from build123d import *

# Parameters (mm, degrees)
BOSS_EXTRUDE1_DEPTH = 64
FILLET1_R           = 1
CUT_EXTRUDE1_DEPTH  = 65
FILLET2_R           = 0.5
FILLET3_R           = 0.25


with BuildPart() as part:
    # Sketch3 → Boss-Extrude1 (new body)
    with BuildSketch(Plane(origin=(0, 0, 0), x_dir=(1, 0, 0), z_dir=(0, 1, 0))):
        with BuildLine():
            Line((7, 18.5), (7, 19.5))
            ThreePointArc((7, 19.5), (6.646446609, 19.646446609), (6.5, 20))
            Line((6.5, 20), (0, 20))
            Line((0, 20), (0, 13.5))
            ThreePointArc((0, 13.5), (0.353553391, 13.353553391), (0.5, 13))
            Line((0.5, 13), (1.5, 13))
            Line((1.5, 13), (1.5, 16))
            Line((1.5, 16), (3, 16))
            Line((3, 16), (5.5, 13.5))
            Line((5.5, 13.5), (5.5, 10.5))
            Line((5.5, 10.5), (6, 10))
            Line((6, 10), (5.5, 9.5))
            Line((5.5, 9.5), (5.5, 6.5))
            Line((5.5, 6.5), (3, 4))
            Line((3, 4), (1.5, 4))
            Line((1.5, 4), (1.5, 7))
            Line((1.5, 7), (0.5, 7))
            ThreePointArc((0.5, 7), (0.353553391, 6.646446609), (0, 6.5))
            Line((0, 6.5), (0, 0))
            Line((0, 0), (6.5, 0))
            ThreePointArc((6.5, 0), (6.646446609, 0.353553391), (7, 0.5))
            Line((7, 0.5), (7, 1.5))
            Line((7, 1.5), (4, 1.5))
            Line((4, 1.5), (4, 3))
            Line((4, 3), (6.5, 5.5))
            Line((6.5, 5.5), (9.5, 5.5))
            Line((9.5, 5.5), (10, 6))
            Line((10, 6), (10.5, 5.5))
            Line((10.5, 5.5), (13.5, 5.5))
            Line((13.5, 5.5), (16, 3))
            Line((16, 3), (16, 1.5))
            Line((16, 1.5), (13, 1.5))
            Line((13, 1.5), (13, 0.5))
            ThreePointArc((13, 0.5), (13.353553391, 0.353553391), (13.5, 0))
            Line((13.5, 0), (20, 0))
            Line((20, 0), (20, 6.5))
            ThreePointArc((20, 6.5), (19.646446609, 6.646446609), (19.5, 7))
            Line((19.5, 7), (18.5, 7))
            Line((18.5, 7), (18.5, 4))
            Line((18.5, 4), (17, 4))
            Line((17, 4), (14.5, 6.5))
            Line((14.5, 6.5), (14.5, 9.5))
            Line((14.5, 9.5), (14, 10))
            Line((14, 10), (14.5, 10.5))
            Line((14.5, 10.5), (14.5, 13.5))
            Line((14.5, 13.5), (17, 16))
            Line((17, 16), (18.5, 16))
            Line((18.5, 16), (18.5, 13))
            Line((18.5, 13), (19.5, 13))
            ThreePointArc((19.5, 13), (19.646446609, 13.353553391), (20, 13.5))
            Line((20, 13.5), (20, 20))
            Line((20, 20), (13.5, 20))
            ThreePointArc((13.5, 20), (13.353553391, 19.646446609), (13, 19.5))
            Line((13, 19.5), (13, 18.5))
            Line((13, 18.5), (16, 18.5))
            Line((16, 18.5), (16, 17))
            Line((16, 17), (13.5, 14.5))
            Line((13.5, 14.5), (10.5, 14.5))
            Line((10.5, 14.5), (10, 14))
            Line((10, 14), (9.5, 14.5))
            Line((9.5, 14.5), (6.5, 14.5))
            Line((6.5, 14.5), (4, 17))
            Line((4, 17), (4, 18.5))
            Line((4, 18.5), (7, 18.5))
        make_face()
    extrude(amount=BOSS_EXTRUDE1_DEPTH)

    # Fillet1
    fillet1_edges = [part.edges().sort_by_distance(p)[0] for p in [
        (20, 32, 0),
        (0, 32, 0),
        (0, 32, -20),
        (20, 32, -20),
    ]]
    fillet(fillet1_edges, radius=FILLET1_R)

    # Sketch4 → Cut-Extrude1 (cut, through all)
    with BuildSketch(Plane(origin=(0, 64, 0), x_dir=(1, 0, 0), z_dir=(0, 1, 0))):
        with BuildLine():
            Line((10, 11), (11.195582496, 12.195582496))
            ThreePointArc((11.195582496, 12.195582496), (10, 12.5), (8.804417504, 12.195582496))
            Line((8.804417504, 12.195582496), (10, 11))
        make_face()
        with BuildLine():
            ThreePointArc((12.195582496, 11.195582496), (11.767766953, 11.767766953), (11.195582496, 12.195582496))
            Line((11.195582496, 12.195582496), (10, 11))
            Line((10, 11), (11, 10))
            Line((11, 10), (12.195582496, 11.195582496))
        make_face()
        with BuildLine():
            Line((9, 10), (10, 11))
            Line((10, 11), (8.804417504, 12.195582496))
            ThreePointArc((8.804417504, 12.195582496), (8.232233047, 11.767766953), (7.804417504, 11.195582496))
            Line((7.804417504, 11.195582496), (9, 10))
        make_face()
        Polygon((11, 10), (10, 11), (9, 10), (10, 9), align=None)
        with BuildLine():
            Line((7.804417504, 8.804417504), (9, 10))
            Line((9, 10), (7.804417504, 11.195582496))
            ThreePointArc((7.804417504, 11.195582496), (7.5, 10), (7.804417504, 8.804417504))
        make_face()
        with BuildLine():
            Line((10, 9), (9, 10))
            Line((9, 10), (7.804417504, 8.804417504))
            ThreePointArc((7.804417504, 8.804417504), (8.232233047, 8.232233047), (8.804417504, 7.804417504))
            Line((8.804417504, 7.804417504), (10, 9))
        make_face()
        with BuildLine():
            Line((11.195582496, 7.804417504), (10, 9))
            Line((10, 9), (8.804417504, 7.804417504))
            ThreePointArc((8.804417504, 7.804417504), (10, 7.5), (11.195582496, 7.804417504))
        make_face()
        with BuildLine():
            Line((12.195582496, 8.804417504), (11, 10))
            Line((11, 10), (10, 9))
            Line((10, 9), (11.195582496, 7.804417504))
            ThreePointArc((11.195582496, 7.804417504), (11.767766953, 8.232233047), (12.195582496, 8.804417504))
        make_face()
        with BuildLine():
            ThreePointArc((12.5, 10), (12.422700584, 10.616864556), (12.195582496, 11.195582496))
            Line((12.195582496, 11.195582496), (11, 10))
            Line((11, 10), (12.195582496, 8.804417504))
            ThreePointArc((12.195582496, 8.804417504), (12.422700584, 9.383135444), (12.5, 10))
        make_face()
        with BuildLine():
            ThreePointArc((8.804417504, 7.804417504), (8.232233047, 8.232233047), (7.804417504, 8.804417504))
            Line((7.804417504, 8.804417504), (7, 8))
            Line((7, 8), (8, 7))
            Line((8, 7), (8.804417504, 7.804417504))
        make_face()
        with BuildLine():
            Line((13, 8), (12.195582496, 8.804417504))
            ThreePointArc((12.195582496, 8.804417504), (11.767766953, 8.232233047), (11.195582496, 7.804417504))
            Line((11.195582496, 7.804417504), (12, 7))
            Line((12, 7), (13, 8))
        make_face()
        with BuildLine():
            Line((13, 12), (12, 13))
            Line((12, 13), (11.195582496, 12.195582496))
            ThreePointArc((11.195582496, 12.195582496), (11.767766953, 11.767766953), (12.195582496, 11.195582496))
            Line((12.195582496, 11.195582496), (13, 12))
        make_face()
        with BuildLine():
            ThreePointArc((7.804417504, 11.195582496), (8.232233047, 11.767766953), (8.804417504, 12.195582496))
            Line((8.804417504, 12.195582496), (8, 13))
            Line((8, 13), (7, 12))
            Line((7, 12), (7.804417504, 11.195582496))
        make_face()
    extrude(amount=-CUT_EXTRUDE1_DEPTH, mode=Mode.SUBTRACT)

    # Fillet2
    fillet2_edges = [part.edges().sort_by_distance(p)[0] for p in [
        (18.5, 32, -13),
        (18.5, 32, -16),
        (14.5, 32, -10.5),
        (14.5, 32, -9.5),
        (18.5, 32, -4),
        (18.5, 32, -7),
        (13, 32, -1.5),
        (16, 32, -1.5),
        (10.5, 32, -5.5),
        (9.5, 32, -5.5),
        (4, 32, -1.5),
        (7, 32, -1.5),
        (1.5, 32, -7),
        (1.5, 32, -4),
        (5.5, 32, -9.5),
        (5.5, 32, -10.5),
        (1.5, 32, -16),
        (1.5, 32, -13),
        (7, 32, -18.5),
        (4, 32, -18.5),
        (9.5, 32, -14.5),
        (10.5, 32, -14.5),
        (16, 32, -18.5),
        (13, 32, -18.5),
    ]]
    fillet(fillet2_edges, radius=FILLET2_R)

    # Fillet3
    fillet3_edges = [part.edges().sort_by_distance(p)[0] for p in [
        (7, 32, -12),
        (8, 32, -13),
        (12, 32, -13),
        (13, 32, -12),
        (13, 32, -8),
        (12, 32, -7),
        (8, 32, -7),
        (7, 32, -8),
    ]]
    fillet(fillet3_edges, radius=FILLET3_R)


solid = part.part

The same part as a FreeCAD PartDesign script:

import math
import FreeCAD as App
import Part
import Sketcher

V = App.Vector


def edges_at(feature, points):
    """Names of the edges that pass closest to the given points."""
    edges = feature.Shape.Edges
    near = lambda p: min(range(len(edges)), key=lambda i: edges[i].distToShape(Part.Vertex(*p))[0])
    return sorted({f"Edge{near(p) + 1}" for p in points})

doc = App.newDocument("Part")
body = doc.addObject("PartDesign::Body", "Body")

# Sketch on XZ plane
sketch1 = doc.addObject("Sketcher::SketchObject", "Sketch")
body.addObject(sketch1)
sketch1.AttachmentSupport = (doc.XZ_Plane, [""])
sketch1.MapMode = "FlatFace"
sketch1.addGeometry([
    Part.LineSegment(V(7, -18.5, 0), V(7, -19.5, 0)),  # 0
    Part.ArcOfCircle(Part.Circle(V(7, -20, 0), V(0, 0, 1), 0.5), math.radians(90), math.radians(180)),  # 1
    Part.LineSegment(V(6.5, -20, 0), V(0, -20, 0)),  # 2
    Part.LineSegment(V(0, -20, 0), V(0, -13.5, 0)),  # 3
    Part.ArcOfCircle(Part.Circle(V(0, -13, 0), V(0, 0, 1), 0.5), math.radians(-90), math.radians(0)),  # 4
    Part.LineSegment(V(0.5, -13, 0), V(1.5, -13, 0)),  # 5
    Part.LineSegment(V(1.5, -13, 0), V(1.5, -16, 0)),  # 6
    Part.LineSegment(V(1.5, -16, 0), V(3, -16, 0)),  # 7
    Part.LineSegment(V(3, -16, 0), V(5.5, -13.5, 0)),  # 8
    Part.LineSegment(V(5.5, -13.5, 0), V(5.5, -10.5, 0)),  # 9
    Part.LineSegment(V(5.5, -10.5, 0), V(6, -10, 0)),  # 10
    Part.LineSegment(V(6, -10, 0), V(5.5, -9.5, 0)),  # 11
    Part.LineSegment(V(5.5, -9.5, 0), V(5.5, -6.5, 0)),  # 12
    Part.LineSegment(V(5.5, -6.5, 0), V(3, -4, 0)),  # 13
    Part.LineSegment(V(3, -4, 0), V(1.5, -4, 0)),  # 14
    Part.LineSegment(V(1.5, -4, 0), V(1.5, -7, 0)),  # 15
    Part.LineSegment(V(1.5, -7, 0), V(0.5, -7, 0)),  # 16
    Part.ArcOfCircle(Part.Circle(V(0, -7, 0), V(0, 0, 1), 0.5), math.radians(0), math.radians(90)),  # 17
    Part.LineSegment(V(0, -6.5, 0), V(0, 0, 0)),  # 18
    Part.LineSegment(V(0, 0, 0), V(6.5, 0, 0)),  # 19
    Part.ArcOfCircle(Part.Circle(V(7, 0, 0), V(0, 0, 1), 0.5), math.radians(180), math.radians(270)),  # 20
    Part.LineSegment(V(7, -0.5, 0), V(7, -1.5, 0)),  # 21
    Part.LineSegment(V(7, -1.5, 0), V(4, -1.5, 0)),  # 22
    Part.LineSegment(V(4, -1.5, 0), V(4, -3, 0)),  # 23
    Part.LineSegment(V(4, -3, 0), V(6.5, -5.5, 0)),  # 24
    Part.LineSegment(V(6.5, -5.5, 0), V(9.5, -5.5, 0)),  # 25
    Part.LineSegment(V(9.5, -5.5, 0), V(10, -6, 0)),  # 26
    Part.LineSegment(V(10, -6, 0), V(10.5, -5.5, 0)),  # 27
    Part.LineSegment(V(10.5, -5.5, 0), V(13.5, -5.5, 0)),  # 28
    Part.LineSegment(V(13.5, -5.5, 0), V(16, -3, 0)),  # 29
    Part.LineSegment(V(16, -3, 0), V(16, -1.5, 0)),  # 30
    Part.LineSegment(V(16, -1.5, 0), V(13, -1.5, 0)),  # 31
    Part.LineSegment(V(13, -1.5, 0), V(13, -0.5, 0)),  # 32
    Part.ArcOfCircle(Part.Circle(V(13, 0, 0), V(0, 0, 1), 0.5), math.radians(-90), math.radians(0)),  # 33
    Part.LineSegment(V(13.5, 0, 0), V(20, 0, 0)),  # 34
    Part.LineSegment(V(20, 0, 0), V(20, -6.5, 0)),  # 35
    Part.ArcOfCircle(Part.Circle(V(20, -7, 0), V(0, 0, 1), 0.5), math.radians(90), math.radians(180)),  # 36
    Part.LineSegment(V(19.5, -7, 0), V(18.5, -7, 0)),  # 37
    Part.LineSegment(V(18.5, -7, 0), V(18.5, -4, 0)),  # 38
    Part.LineSegment(V(18.5, -4, 0), V(17, -4, 0)),  # 39
    Part.LineSegment(V(17, -4, 0), V(14.5, -6.5, 0)),  # 40
    Part.LineSegment(V(14.5, -6.5, 0), V(14.5, -9.5, 0)),  # 41
    Part.LineSegment(V(14.5, -9.5, 0), V(14, -10, 0)),  # 42
    Part.LineSegment(V(14, -10, 0), V(14.5, -10.5, 0)),  # 43
    Part.LineSegment(V(14.5, -10.5, 0), V(14.5, -13.5, 0)),  # 44
    Part.LineSegment(V(14.5, -13.5, 0), V(17, -16, 0)),  # 45
    Part.LineSegment(V(17, -16, 0), V(18.5, -16, 0)),  # 46
    Part.LineSegment(V(18.5, -16, 0), V(18.5, -13, 0)),  # 47
    Part.LineSegment(V(18.5, -13, 0), V(19.5, -13, 0)),  # 48
    Part.ArcOfCircle(Part.Circle(V(20, -13, 0), V(0, 0, 1), 0.5), math.radians(180), math.radians(270)),  # 49
    Part.LineSegment(V(20, -13.5, 0), V(20, -20, 0)),  # 50
    Part.LineSegment(V(20, -20, 0), V(13.5, -20, 0)),  # 51
    Part.ArcOfCircle(Part.Circle(V(13, -20, 0), V(0, 0, 1), 0.5), math.radians(0), math.radians(90)),  # 52
    Part.LineSegment(V(13, -19.5, 0), V(13, -18.5, 0)),  # 53
    Part.LineSegment(V(13, -18.5, 0), V(16, -18.5, 0)),  # 54
    Part.LineSegment(V(16, -18.5, 0), V(16, -17, 0)),  # 55
    Part.LineSegment(V(16, -17, 0), V(13.5, -14.5, 0)),  # 56
    Part.LineSegment(V(13.5, -14.5, 0), V(10.5, -14.5, 0)),  # 57
    Part.LineSegment(V(10.5, -14.5, 0), V(10, -14, 0)),  # 58
    Part.LineSegment(V(10, -14, 0), V(9.5, -14.5, 0)),  # 59
    Part.LineSegment(V(9.5, -14.5, 0), V(6.5, -14.5, 0)),  # 60
    Part.LineSegment(V(6.5, -14.5, 0), V(4, -17, 0)),  # 61
    Part.LineSegment(V(4, -17, 0), V(4, -18.5, 0)),  # 62
    Part.LineSegment(V(4, -18.5, 0), V(7, -18.5, 0)),  # 63
], False)
sketch1.addConstraint([
    Sketcher.Constraint("Coincident", 0, 2, 1, 1),
    Sketcher.Constraint("Coincident", 1, 2, 2, 1),
    Sketcher.Constraint("Coincident", 2, 2, 3, 1),
    Sketcher.Constraint("Coincident", 3, 2, 4, 1),
    Sketcher.Constraint("Coincident", 4, 2, 5, 1),
    Sketcher.Constraint("Coincident", 5, 2, 6, 1),
    Sketcher.Constraint("Coincident", 6, 2, 7, 1),
    Sketcher.Constraint("Coincident", 7, 2, 8, 1),
    Sketcher.Constraint("Coincident", 8, 2, 9, 1),
    Sketcher.Constraint("Coincident", 9, 2, 10, 1),
    Sketcher.Constraint("Coincident", 10, 2, 11, 1),
    Sketcher.Constraint("Coincident", 11, 2, 12, 1),
    Sketcher.Constraint("Coincident", 12, 2, 13, 1),
    Sketcher.Constraint("Coincident", 13, 2, 14, 1),
    Sketcher.Constraint("Coincident", 14, 2, 15, 1),
    Sketcher.Constraint("Coincident", 15, 2, 16, 1),
    Sketcher.Constraint("Coincident", 16, 2, 17, 1),
    Sketcher.Constraint("Coincident", 17, 2, 18, 1),
    Sketcher.Constraint("Coincident", 18, 2, 19, 1),
    Sketcher.Constraint("Coincident", 19, 2, 20, 1),
    Sketcher.Constraint("Coincident", 20, 2, 21, 1),
    Sketcher.Constraint("Coincident", 21, 2, 22, 1),
    Sketcher.Constraint("Coincident", 22, 2, 23, 1),
    Sketcher.Constraint("Coincident", 23, 2, 24, 1),
    Sketcher.Constraint("Coincident", 24, 2, 25, 1),
    Sketcher.Constraint("Coincident", 25, 2, 26, 1),
    Sketcher.Constraint("Coincident", 26, 2, 27, 1),
    Sketcher.Constraint("Coincident", 27, 2, 28, 1),
    Sketcher.Constraint("Coincident", 28, 2, 29, 1),
    Sketcher.Constraint("Coincident", 29, 2, 30, 1),
    Sketcher.Constraint("Coincident", 30, 2, 31, 1),
    Sketcher.Constraint("Coincident", 31, 2, 32, 1),
    Sketcher.Constraint("Coincident", 32, 2, 33, 1),
    Sketcher.Constraint("Coincident", 33, 2, 34, 1),
    Sketcher.Constraint("Coincident", 34, 2, 35, 1),
    Sketcher.Constraint("Coincident", 35, 2, 36, 1),
    Sketcher.Constraint("Coincident", 36, 2, 37, 1),
    Sketcher.Constraint("Coincident", 37, 2, 38, 1),
    Sketcher.Constraint("Coincident", 38, 2, 39, 1),
    Sketcher.Constraint("Coincident", 39, 2, 40, 1),
    Sketcher.Constraint("Coincident", 40, 2, 41, 1),
    Sketcher.Constraint("Coincident", 41, 2, 42, 1),
    Sketcher.Constraint("Coincident", 42, 2, 43, 1),
    Sketcher.Constraint("Coincident", 43, 2, 44, 1),
    Sketcher.Constraint("Coincident", 44, 2, 45, 1),
    Sketcher.Constraint("Coincident", 45, 2, 46, 1),
    Sketcher.Constraint("Coincident", 46, 2, 47, 1),
    Sketcher.Constraint("Coincident", 47, 2, 48, 1),
    Sketcher.Constraint("Coincident", 48, 2, 49, 1),
    Sketcher.Constraint("Coincident", 49, 2, 50, 1),
    Sketcher.Constraint("Coincident", 50, 2, 51, 1),
    Sketcher.Constraint("Coincident", 51, 2, 52, 1),
    Sketcher.Constraint("Coincident", 52, 2, 53, 1),
    Sketcher.Constraint("Coincident", 53, 2, 54, 1),
    Sketcher.Constraint("Coincident", 54, 2, 55, 1),
    Sketcher.Constraint("Coincident", 55, 2, 56, 1),
    Sketcher.Constraint("Coincident", 56, 2, 57, 1),
    Sketcher.Constraint("Coincident", 57, 2, 58, 1),
    Sketcher.Constraint("Coincident", 58, 2, 59, 1),
    Sketcher.Constraint("Coincident", 59, 2, 60, 1),
    Sketcher.Constraint("Coincident", 60, 2, 61, 1),
    Sketcher.Constraint("Coincident", 61, 2, 62, 1),
    Sketcher.Constraint("Coincident", 62, 2, 63, 1),
    Sketcher.Constraint("Coincident", 63, 2, 0, 1),
    Sketcher.Constraint("Vertical", 0),
    Sketcher.Constraint("Horizontal", 2),
    Sketcher.Constraint("Vertical", 3),
    Sketcher.Constraint("Horizontal", 5),
    Sketcher.Constraint("Vertical", 6),
    Sketcher.Constraint("Horizontal", 7),
    Sketcher.Constraint("Vertical", 9),
    Sketcher.Constraint("Vertical", 12),
    Sketcher.Constraint("Horizontal", 14),
    Sketcher.Constraint("Vertical", 15),
    Sketcher.Constraint("Horizontal", 16),
    Sketcher.Constraint("Vertical", 18),
    Sketcher.Constraint("Horizontal", 19),
    Sketcher.Constraint("Vertical", 21),
    Sketcher.Constraint("Horizontal", 22),
    Sketcher.Constraint("Vertical", 23),
    Sketcher.Constraint("Horizontal", 25),
    Sketcher.Constraint("Horizontal", 28),
    Sketcher.Constraint("Vertical", 30),
    Sketcher.Constraint("Horizontal", 31),
    Sketcher.Constraint("Vertical", 32),
    Sketcher.Constraint("Horizontal", 34),
    Sketcher.Constraint("Vertical", 35),
    Sketcher.Constraint("Horizontal", 37),
    Sketcher.Constraint("Vertical", 38),
    Sketcher.Constraint("Horizontal", 39),
    Sketcher.Constraint("Vertical", 41),
    Sketcher.Constraint("Vertical", 44),
    Sketcher.Constraint("Horizontal", 46),
    Sketcher.Constraint("Vertical", 47),
    Sketcher.Constraint("Horizontal", 48),
    Sketcher.Constraint("Vertical", 50),
    Sketcher.Constraint("Horizontal", 51),
    Sketcher.Constraint("Vertical", 53),
    Sketcher.Constraint("Horizontal", 54),
    Sketcher.Constraint("Vertical", 55),
    Sketcher.Constraint("Horizontal", 57),
    Sketcher.Constraint("Horizontal", 60),
    Sketcher.Constraint("Vertical", 62),
    Sketcher.Constraint("Horizontal", 63),
    Sketcher.Constraint("Coincident", 18, 2, -1, 1),
    Sketcher.Constraint("Equal", 1, 4),
    Sketcher.Constraint("Equal", 4, 17),
    Sketcher.Constraint("Equal", 17, 20),
    Sketcher.Constraint("Equal", 20, 33),
    Sketcher.Constraint("Equal", 33, 36),
    Sketcher.Constraint("Equal", 36, 49),
    Sketcher.Constraint("Equal", 49, 52),
    Sketcher.Constraint("PointOnObject", 4, 3, -2),
    Sketcher.Constraint("PointOnObject", 17, 3, -2),
    Sketcher.Constraint("PointOnObject", 20, 3, -1),
    Sketcher.Constraint("PointOnObject", 33, 3, -1),
    Sketcher.Constraint("PointOnObject", 2, 2, -2),
    Sketcher.Constraint("PointOnObject", 33, 2, -1),
    Sketcher.Constraint("Parallel", 8, 10),
    Sketcher.Constraint("Perpendicular", 10, 11),
    Sketcher.Constraint("Parallel", 11, 13),
    Sketcher.Constraint("Parallel", 13, 24),
    Sketcher.Constraint("Parallel", 24, 26),
    Sketcher.Constraint("Perpendicular", 26, 27),
    Sketcher.Constraint("Parallel", 27, 29),
    Sketcher.Constraint("Parallel", 29, 40),
    Sketcher.Constraint("Parallel", 40, 42),
    Sketcher.Constraint("Perpendicular", 42, 43),
    Sketcher.Constraint("Parallel", 43, 45),
    Sketcher.Constraint("Parallel", 45, 56),
    Sketcher.Constraint("Parallel", 56, 58),
    Sketcher.Constraint("Perpendicular", 58, 59),
    Sketcher.Constraint("Parallel", 59, 61),
    Sketcher.Constraint("Horizontal", 17, 3, 36, 3),
    Sketcher.Constraint("Horizontal", 4, 3, 49, 3),
    Sketcher.Constraint("Horizontal", 1, 3, 52, 3),
    Sketcher.Constraint("Horizontal", 52, 3, 1, 2),
    Sketcher.Constraint("Horizontal", 49, 3, 4, 2),
    Sketcher.Constraint("Horizontal", 3, 2, 8, 2),
    Sketcher.Constraint("Horizontal", 36, 3, 15, 2),
    Sketcher.Constraint("Horizontal", 12, 2, 17, 2),
    Sketcher.Constraint("Horizontal", 25, 2, 27, 2),
    Sketcher.Constraint("Horizontal", 23, 2, 29, 2),
    Sketcher.Constraint("Horizontal", 22, 2, 30, 2),
    Sketcher.Constraint("Horizontal", 16, 2, 36, 2),
    Sketcher.Constraint("Horizontal", 14, 2, 38, 2),
    Sketcher.Constraint("Horizontal", 35, 2, 40, 2),
    Sketcher.Constraint("Horizontal", 11, 2, 41, 2),
    Sketcher.Constraint("Horizontal", 10, 2, 42, 2),
    Sketcher.Constraint("Horizontal", 9, 2, 43, 2),
    Sketcher.Constraint("Horizontal", 8, 2, 44, 2),
    Sketcher.Constraint("Horizontal", 7, 2, 45, 2),
    Sketcher.Constraint("Horizontal", 5, 2, 47, 2),
    Sketcher.Constraint("Horizontal", 2, 2, 50, 2),
    Sketcher.Constraint("Horizontal", 57, 2, 59, 2),
    Sketcher.Constraint("Horizontal", 55, 2, 61, 2),
    Sketcher.Constraint("Horizontal", 54, 2, 62, 2),
    Sketcher.Constraint("Vertical", 1, 3, 20, 3),
    Sketcher.Constraint("Vertical", 36, 3, 49, 3),
    Sketcher.Constraint("Vertical", 33, 3, 52, 3),
    Sketcher.Constraint("Vertical", 20, 3, 0, 2),
    Sketcher.Constraint("Vertical", 9, 2, 11, 2),
    Sketcher.Constraint("Vertical", 7, 2, 13, 2),
    Sketcher.Constraint("Vertical", 6, 2, 14, 2),
    Sketcher.Constraint("Vertical", 0, 2, 20, 2),
    Sketcher.Constraint("Vertical", 19, 2, 24, 2),
    Sketcher.Constraint("Vertical", 52, 3, 31, 2),
    Sketcher.Constraint("Vertical", 28, 2, 33, 2),
    Sketcher.Constraint("Vertical", 49, 3, 34, 2),
    Sketcher.Constraint("Vertical", 41, 2, 43, 2),
    Sketcher.Constraint("Vertical", 38, 2, 46, 2),
    Sketcher.Constraint("Vertical", 35, 2, 49, 2),
    Sketcher.Constraint("Vertical", 32, 2, 52, 2),
    Sketcher.Constraint("Vertical", 30, 2, 54, 2),
    Sketcher.Constraint("Vertical", 51, 2, 56, 2),
    Sketcher.Constraint("Vertical", 27, 2, 57, 2),
    Sketcher.Constraint("Vertical", 26, 2, 58, 2),
    Sketcher.Constraint("Vertical", 24, 2, 60, 2),
    Sketcher.Constraint("Equal", 22, 25),
    Sketcher.Constraint("Equal", 25, 28),
    Sketcher.Constraint("Equal", 19, 34),
    Sketcher.Constraint("Equal", 16, 37),
    Sketcher.Constraint("Equal", 14, 39),
    Sketcher.Constraint("Equal", 48, 0),
    Sketcher.Constraint("Equal", 51, 3),
    Sketcher.Constraint("Equal", 63, 6),
    Sketcher.Constraint("Equal", 6, 9),
    Sketcher.Constraint("Equal", 9, 12),
    Sketcher.Constraint("Equal", 3, 18),
    Sketcher.Constraint("Equal", 0, 21),
    Sketcher.Constraint("Equal", 46, 23),
    Sketcher.Constraint("Equal", 30, 55),
    Sketcher.Constraint("Equal", 11, 26),
    Sketcher.Constraint("Radius", 1, 0.5),
    Sketcher.Constraint("DistanceX", 5, 1, 5, 2, 1.0),
    Sketcher.Constraint("DistanceX", 22, 2, 22, 1, 3.0),
    Sketcher.Constraint("DistanceX", 2, 2, 2, 1, 6.5),
    Sketcher.Constraint("DistanceX", 7, 1, 7, 2, 1.5),
    Sketcher.Constraint("DistanceY", 1, 3, -1, 1, 20.0),
])
pad1 = doc.addObject("PartDesign::Pad", "Pad")
body.addObject(pad1)
pad1.Profile = sketch1
pad1.Length = 64
pad1.Reversed = True
doc.recompute()

fillet = doc.addObject("PartDesign::Fillet", "Fillet")
body.addObject(fillet)
fillet.Base = (pad1, edges_at(pad1, [
    (20, 32, 0),
    (0, 32, 0),
    (0, 32, -20),
    (20, 32, -20),
]))
fillet.Radius = 1

# Sketch on XZ plane
sketch2 = doc.addObject("Sketcher::SketchObject", "Sketch001")
body.addObject(sketch2)
sketch2.AttachmentSupport = (doc.XZ_Plane, [""])
sketch2.MapMode = "FlatFace"
sketch2.AttachmentOffset = App.Placement(V(0, 0, -64), App.Rotation())
sketch2.addGeometry([
    Part.ArcOfCircle(Part.Circle(V(10, -10, 0), V(0, 0, 1), 2.5), math.radians(-118.57006), math.radians(-61.42994)),  # 0
    Part.LineSegment(V(8.804418, -12.195582, 0), V(8, -13, 0)),  # 1
    Part.LineSegment(V(8, -13, 0), V(7, -12, 0)),  # 2
    Part.LineSegment(V(7, -12, 0), V(7.804418, -11.195582, 0)),  # 3
    Part.ArcOfCircle(Part.Circle(V(10, -10, 0), V(0, 0, 1), 2.5), math.radians(151.42994), math.radians(208.57006)),  # 4
    Part.LineSegment(V(7.804418, -8.804418, 0), V(7, -8, 0)),  # 5
    Part.LineSegment(V(7, -8, 0), V(8, -7, 0)),  # 6
    Part.LineSegment(V(8, -7, 0), V(8.804418, -7.804418, 0)),  # 7
    Part.ArcOfCircle(Part.Circle(V(10, -10, 0), V(0, 0, 1), 2.5), math.radians(61.42994), math.radians(118.57006)),  # 8
    Part.LineSegment(V(11.195582, -7.804418, 0), V(12, -7, 0)),  # 9
    Part.LineSegment(V(12, -7, 0), V(13, -8, 0)),  # 10
    Part.LineSegment(V(13, -8, 0), V(12.195582, -8.804418, 0)),  # 11
    Part.ArcOfCircle(Part.Circle(V(10, -10, 0), V(0, 0, 1), 2.5), math.radians(0), math.radians(28.57006)),  # 12
    Part.ArcOfCircle(Part.Circle(V(10, -10, 0), V(0, 0, 1), 2.5), math.radians(-28.57006), math.radians(0)),  # 13
    Part.LineSegment(V(12.195582, -11.195582, 0), V(13, -12, 0)),  # 14
    Part.LineSegment(V(13, -12, 0), V(12, -13, 0)),  # 15
    Part.LineSegment(V(12, -13, 0), V(11.195582, -12.195582, 0)),  # 16
], False)
sketch2.addConstraint([
    Sketcher.Constraint("Coincident", 0, 1, 1, 1),
    Sketcher.Constraint("Coincident", 1, 2, 2, 1),
    Sketcher.Constraint("Coincident", 2, 2, 3, 1),
    Sketcher.Constraint("Coincident", 3, 2, 4, 2),
    Sketcher.Constraint("Coincident", 4, 1, 5, 1),
    Sketcher.Constraint("Coincident", 5, 2, 6, 1),
    Sketcher.Constraint("Coincident", 6, 2, 7, 1),
    Sketcher.Constraint("Coincident", 7, 2, 8, 2),
    Sketcher.Constraint("Coincident", 8, 1, 9, 1),
    Sketcher.Constraint("Coincident", 9, 2, 10, 1),
    Sketcher.Constraint("Coincident", 10, 2, 11, 1),
    Sketcher.Constraint("Coincident", 11, 2, 12, 2),
    Sketcher.Constraint("Tangent", 12, 1, 13, 2),
    Sketcher.Constraint("Coincident", 13, 1, 14, 1),
    Sketcher.Constraint("Coincident", 14, 2, 15, 1),
    Sketcher.Constraint("Coincident", 15, 2, 16, 1),
    Sketcher.Constraint("Coincident", 16, 2, 0, 2),
    Sketcher.Constraint("Coincident", 4, 3, 0, 3),
    Sketcher.Constraint("Coincident", 8, 3, 0, 3),
    Sketcher.Constraint("Coincident", 12, 3, 0, 3),
    Sketcher.Constraint("Equal", 0, 4),
    Sketcher.Constraint("Equal", 4, 8),
    Sketcher.Constraint("Equal", 8, 12),
    Sketcher.Constraint("Equal", 12, 13),
    Sketcher.Constraint("Perpendicular", 1, 2),
    Sketcher.Constraint("Perpendicular", 2, 3),
    Sketcher.Constraint("Perpendicular", 3, 5),
    Sketcher.Constraint("Perpendicular", 5, 6),
    Sketcher.Constraint("Perpendicular", 6, 7),
    Sketcher.Constraint("Perpendicular", 7, 9),
    Sketcher.Constraint("Perpendicular", 9, 10),
    Sketcher.Constraint("Perpendicular", 10, 11),
    Sketcher.Constraint("Perpendicular", 11, 14),
    Sketcher.Constraint("Perpendicular", 14, 15),
    Sketcher.Constraint("Perpendicular", 15, 16),
    Sketcher.Constraint("Horizontal", 7, 2, 8, 1),
    Sketcher.Constraint("Horizontal", 6, 2, 9, 2),
    Sketcher.Constraint("Horizontal", 5, 2, 10, 2),
    Sketcher.Constraint("Horizontal", 4, 1, 11, 2),
    Sketcher.Constraint("Horizontal", 13, 3, 12, 1),
    Sketcher.Constraint("Horizontal", 3, 2, 13, 1),
    Sketcher.Constraint("Horizontal", 2, 2, 14, 2),
    Sketcher.Constraint("Horizontal", 1, 2, 15, 2),
    Sketcher.Constraint("Vertical", 3, 2, 4, 1),
    Sketcher.Constraint("Vertical", 2, 2, 5, 2),
    Sketcher.Constraint("Vertical", 1, 2, 6, 2),
    Sketcher.Constraint("Equal", 1, 3),
    Sketcher.Constraint("Radius", 0, 2.5),
    Sketcher.Constraint("DistanceX", -1, 1, 0, 3, 10.0),
    Sketcher.Constraint("DistanceY", 0, 3, -1, 1, 10.0),
    Sketcher.Constraint("DistanceX", -1, 1, 1, 2, 8.0),
    Sketcher.Constraint("DistanceY", 1, 2, -1, 1, 13.0),
])
pocket1 = doc.addObject("PartDesign::Pocket", "Pocket")
body.addObject(pocket1)
pocket1.Profile = sketch2
pocket1.Type = "ThroughAll"
pocket1.Reversed = True
doc.recompute()

fillet2 = doc.addObject("PartDesign::Fillet", "Fillet001")
body.addObject(fillet2)
fillet2.Base = (pocket1, edges_at(pocket1, [
    (18.5, 32, -13),
    (18.5, 32, -16),
    (14.5, 32, -10.5),
    (14.5, 32, -9.5),
    (18.5, 32, -4),
    (18.5, 32, -7),
    (13, 32, -1.5),
    (16, 32, -1.5),
    (10.5, 32, -5.5),
    (9.5, 32, -5.5),
    (4, 32, -1.5),
    (7, 32, -1.5),
    (1.5, 32, -7),
    (1.5, 32, -4),
    (5.5, 32, -9.5),
    (5.5, 32, -10.5),
    (1.5, 32, -16),
    (1.5, 32, -13),
    (7, 32, -18.5),
    (4, 32, -18.5),
    (9.5, 32, -14.5),
    (10.5, 32, -14.5),
    (16, 32, -18.5),
    (13, 32, -18.5),
]))
fillet2.Radius = 0.5
doc.recompute()

fillet3 = doc.addObject("PartDesign::Fillet", "Fillet002")
body.addObject(fillet3)
fillet3.Base = (fillet2, edges_at(fillet2, [
    (7, 32, -12),
    (8, 32, -13),
    (12, 32, -13),
    (13, 32, -12),
    (13, 32, -8),
    (12, 32, -7),
    (8, 32, -7),
    (7, 32, -8),
]))
fillet3.Radius = 0.25

doc.recompute()
